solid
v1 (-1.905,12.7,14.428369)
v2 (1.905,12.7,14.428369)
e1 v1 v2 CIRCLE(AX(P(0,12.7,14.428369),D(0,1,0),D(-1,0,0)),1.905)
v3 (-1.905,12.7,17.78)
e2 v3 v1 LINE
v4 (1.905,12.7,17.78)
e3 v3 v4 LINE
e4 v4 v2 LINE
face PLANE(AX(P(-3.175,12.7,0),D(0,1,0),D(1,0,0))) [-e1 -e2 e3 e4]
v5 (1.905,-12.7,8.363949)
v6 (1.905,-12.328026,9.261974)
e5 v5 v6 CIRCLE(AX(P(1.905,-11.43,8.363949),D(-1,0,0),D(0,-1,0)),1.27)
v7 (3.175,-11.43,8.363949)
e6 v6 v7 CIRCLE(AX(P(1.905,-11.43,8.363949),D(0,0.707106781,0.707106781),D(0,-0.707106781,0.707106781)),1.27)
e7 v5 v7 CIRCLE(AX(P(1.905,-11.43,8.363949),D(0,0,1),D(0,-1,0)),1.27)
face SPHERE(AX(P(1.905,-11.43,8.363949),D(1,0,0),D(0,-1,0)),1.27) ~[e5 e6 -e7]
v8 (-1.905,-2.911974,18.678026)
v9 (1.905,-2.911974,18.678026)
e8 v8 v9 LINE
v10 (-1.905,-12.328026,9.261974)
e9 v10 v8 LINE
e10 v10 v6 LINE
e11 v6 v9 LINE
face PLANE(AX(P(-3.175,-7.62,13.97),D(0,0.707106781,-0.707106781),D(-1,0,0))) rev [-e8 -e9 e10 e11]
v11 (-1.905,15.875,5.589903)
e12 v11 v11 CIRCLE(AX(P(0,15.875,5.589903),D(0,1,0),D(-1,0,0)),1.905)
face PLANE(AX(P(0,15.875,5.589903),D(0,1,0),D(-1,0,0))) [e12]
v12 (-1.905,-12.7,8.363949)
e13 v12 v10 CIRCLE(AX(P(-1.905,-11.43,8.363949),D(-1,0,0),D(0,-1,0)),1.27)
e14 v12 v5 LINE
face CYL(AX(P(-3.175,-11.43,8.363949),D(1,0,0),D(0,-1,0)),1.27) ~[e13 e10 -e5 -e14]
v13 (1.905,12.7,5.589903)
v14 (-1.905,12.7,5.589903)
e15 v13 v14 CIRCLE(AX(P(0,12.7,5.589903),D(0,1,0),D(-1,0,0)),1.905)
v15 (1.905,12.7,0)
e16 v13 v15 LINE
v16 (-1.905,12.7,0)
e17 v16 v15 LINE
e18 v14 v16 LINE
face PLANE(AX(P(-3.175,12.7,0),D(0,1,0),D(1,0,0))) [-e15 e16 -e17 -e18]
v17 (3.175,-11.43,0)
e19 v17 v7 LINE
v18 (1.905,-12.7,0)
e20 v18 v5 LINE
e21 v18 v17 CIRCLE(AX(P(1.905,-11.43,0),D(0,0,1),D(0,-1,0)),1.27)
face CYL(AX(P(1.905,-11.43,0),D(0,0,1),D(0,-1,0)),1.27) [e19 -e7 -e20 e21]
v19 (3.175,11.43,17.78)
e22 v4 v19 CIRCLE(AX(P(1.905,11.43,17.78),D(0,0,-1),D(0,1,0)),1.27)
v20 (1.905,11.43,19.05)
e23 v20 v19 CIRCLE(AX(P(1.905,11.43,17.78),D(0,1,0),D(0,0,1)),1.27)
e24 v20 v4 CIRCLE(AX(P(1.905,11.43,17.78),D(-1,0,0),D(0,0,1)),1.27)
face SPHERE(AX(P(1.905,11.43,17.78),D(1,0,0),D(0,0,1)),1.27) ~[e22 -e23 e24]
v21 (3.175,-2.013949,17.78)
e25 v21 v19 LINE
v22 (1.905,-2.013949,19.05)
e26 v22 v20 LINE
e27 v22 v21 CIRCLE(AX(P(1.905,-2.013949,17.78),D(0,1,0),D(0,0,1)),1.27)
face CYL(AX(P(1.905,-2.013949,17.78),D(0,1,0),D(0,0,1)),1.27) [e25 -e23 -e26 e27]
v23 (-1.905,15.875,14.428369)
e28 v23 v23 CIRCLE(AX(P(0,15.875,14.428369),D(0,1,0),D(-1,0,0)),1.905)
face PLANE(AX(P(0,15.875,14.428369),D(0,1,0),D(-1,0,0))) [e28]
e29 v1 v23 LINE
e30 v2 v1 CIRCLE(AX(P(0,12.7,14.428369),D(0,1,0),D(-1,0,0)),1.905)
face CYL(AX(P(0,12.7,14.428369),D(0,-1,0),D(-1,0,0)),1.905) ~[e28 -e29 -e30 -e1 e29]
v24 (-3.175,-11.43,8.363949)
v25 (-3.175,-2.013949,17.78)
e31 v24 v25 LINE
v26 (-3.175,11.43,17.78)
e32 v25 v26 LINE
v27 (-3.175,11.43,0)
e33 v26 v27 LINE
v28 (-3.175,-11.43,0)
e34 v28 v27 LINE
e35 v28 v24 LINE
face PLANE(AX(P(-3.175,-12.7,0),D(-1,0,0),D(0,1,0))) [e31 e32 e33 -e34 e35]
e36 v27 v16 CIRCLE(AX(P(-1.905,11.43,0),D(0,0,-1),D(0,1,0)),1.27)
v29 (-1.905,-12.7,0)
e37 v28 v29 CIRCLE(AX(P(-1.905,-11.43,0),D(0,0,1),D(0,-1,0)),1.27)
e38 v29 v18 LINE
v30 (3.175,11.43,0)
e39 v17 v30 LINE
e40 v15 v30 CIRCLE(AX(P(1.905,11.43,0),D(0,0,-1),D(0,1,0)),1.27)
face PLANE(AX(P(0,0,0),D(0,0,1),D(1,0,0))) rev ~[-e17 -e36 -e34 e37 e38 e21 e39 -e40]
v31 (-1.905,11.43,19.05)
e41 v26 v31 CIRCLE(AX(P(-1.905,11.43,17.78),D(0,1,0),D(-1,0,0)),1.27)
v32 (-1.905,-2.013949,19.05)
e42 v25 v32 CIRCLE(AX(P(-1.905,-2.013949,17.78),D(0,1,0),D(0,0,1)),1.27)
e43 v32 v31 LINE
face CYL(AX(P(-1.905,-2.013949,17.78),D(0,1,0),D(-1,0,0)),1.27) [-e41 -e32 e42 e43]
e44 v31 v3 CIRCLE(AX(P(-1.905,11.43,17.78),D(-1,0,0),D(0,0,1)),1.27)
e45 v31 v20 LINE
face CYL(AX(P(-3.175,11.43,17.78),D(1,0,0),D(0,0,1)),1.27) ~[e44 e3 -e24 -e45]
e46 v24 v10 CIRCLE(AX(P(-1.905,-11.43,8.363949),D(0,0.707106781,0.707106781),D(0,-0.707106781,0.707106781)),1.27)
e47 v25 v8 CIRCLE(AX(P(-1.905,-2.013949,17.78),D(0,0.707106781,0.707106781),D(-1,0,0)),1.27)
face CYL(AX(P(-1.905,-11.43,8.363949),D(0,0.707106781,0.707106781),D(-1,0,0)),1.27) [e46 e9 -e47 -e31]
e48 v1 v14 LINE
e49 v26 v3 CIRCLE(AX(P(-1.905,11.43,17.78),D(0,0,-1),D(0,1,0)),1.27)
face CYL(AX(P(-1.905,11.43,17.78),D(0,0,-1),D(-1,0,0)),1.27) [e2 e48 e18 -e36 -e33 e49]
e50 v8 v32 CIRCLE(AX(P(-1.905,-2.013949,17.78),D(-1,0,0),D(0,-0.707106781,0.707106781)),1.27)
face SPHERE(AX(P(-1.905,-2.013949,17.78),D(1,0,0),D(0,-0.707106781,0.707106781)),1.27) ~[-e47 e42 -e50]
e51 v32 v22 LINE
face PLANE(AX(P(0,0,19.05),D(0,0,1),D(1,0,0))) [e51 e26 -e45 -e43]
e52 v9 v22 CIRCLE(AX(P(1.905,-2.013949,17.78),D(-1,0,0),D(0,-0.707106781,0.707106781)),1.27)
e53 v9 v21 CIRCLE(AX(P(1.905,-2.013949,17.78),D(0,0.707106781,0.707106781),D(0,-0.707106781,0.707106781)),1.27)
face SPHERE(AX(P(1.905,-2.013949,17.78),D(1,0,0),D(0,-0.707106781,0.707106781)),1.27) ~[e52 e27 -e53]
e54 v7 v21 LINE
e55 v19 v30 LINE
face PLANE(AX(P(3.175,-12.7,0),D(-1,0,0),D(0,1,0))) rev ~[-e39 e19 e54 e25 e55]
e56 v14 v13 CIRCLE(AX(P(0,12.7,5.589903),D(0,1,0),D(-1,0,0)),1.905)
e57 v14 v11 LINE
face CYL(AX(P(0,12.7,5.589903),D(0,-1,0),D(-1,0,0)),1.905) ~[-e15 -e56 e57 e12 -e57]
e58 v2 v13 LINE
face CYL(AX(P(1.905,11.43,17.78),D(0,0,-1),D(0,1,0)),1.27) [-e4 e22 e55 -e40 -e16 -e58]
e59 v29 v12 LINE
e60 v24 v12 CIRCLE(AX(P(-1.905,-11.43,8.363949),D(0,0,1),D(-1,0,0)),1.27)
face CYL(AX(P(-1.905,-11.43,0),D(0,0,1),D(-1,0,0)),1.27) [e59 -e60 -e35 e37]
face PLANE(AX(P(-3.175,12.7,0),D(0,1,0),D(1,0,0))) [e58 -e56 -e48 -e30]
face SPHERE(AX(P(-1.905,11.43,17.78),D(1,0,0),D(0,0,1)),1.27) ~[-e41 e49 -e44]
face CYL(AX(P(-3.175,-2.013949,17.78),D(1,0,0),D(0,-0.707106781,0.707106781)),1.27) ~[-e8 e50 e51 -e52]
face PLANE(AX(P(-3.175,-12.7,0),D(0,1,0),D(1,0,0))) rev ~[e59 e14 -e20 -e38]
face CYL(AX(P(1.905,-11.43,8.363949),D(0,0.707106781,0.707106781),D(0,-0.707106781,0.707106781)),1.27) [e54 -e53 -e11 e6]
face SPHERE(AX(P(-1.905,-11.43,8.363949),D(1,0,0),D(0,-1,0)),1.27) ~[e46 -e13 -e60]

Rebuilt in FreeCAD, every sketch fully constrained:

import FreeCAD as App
import Part
import Sketcher
Q = App.Units.Quantity


def edges_at(feature, points):
    """Names of the edges that pass closest to the given points."""
    edges = feature.Shape.Edges
    near = lambda p: min(range(len(edges)), key=lambda i: edges[i].distToShape(Part.Vertex(*p))[0])
    return sorted({f"Edge{near(p) + 1}" for p in points})

doc = App.newDocument("Part")
body = doc.addObject("PartDesign::Body", "Body")

# Sketch on XY plane
sketch1 = body.newObject("Sketcher::SketchObject", "Sketch")
sketch1.AttachmentSupport = (doc.getObject("XY_Plane"), [""])
sketch1.MapMode = "FlatFace"
sketch1.addGeometry([
    Part.LineSegment(App.Vector(-3.175, 12.7, 0), App.Vector(-3.175, -12.7, 0)),
    Part.LineSegment(App.Vector(-3.175, -12.7, 0), App.Vector(3.175, -12.7, 0)),
    Part.LineSegment(App.Vector(3.175, -12.7, 0), App.Vector(3.175, 12.7, 0)),
    Part.LineSegment(App.Vector(3.175, 12.7, 0), App.Vector(-3.175, 12.7, 0)),
], False)
sketch1.addConstraint([
    Sketcher.Constraint("Coincident", 0, 2, 1, 1),
    Sketcher.Constraint("Coincident", 1, 2, 2, 1),
    Sketcher.Constraint("Coincident", 2, 2, 3, 1),
    Sketcher.Constraint("Coincident", 3, 2, 0, 1),
    Sketcher.Constraint("Vertical", 0),
    Sketcher.Constraint("Horizontal", 1),
    Sketcher.Constraint("Vertical", 2),
    Sketcher.Constraint("Horizontal", 3),
    Sketcher.Constraint("Symmetric", 0, 2, 2, 2, -1, 1),
    Sketcher.Constraint("DistanceY", 0, 2, 0, 1, Q("1 in")),
    Sketcher.Constraint("DistanceX", 1, 1, 1, 2, Q("0.25 in")),
])
pad1 = body.newObject("PartDesign::Pad", "Pad")
pad1.Profile = sketch1
pad1.Length = Q("0.75 in")
doc.recompute()

chamfer = body.newObject("PartDesign::Chamfer", "Chamfer")
chamfer.Base = (pad1, edges_at(pad1, [(0, -12.7, 19.05)]))
chamfer.Size = Q("0.4 in")
doc.recompute()

fillet = body.newObject("PartDesign::Fillet", "Fillet")
fillet.Base = (chamfer, edges_at(chamfer, [(0, 12.7, 19.05), (0, -2.54, 19.05), (0, -12.7, 8.89)]))
fillet.Radius = Q("0.05 in")
doc.recompute()

fillet2 = body.newObject("PartDesign::Fillet", "Fillet001")
fillet2.Base = (fillet, edges_at(fillet, [
    (3.175, -12.7, 4.182),
    (3.175, -7.62, 13.97),
    (-3.175, -12.7, 4.182),
    (-3.175, -7.62, 13.97),
    (-3.175, -12.603, 8.85),
    (3.175, -12.603, 8.85),
    (3.175, -2.5, 18.953),
    (3.175, 4.708, 19.05),
    (-3.175, -2.5, 18.953),
    (-3.175, 4.708, 19.05),
    (-3.175, 12.328, 18.678),
    (3.175, 12.328, 18.678),
    (3.175, 12.7, 8.89),
    (-3.175, 12.7, 8.89),
]))
fillet2.Radius = Q("0.05 in")

# Sketch on XZ plane
sketch2 = body.newObject("Sketcher::SketchObject", "Sketch001")
sketch2.AttachmentSupport = (doc.getObject("XZ_Plane"), [""])
sketch2.MapMode = "FlatFace"
sketch2.AttachmentOffset = App.Placement(App.Vector(0, 0, -0.5 * 25.4), App.Rotation())
sketch2.addGeometry([
    Part.Circle(App.Vector(0, 14.428369, 0), App.Vector(0, 0, 1), 1.905),
    Part.Circle(App.Vector(0, 5.589903, 0), App.Vector(0, 0, 1), 1.905),
], False)
sketch2.addConstraint([
    Sketcher.Constraint("Equal", 0, 1),
    Sketcher.Constraint("PointOnObject", 0, 3, -2),
    Sketcher.Constraint("PointOnObject", 1, 3, -2),
    Sketcher.Constraint("Diameter", 0, Q("0.15 in")),
    Sketcher.Constraint("DistanceY", -1, 1, 0, 3, 14.428369),
    Sketcher.Constraint("DistanceY", -1, 1, 1, 3, 5.589903),
])
pad2 = body.newObject("PartDesign::Pad", "Pad001")
pad2.Profile = sketch2
pad2.Length = Q("0.125 in")
pad2.Reversed = True

doc.recompute()
